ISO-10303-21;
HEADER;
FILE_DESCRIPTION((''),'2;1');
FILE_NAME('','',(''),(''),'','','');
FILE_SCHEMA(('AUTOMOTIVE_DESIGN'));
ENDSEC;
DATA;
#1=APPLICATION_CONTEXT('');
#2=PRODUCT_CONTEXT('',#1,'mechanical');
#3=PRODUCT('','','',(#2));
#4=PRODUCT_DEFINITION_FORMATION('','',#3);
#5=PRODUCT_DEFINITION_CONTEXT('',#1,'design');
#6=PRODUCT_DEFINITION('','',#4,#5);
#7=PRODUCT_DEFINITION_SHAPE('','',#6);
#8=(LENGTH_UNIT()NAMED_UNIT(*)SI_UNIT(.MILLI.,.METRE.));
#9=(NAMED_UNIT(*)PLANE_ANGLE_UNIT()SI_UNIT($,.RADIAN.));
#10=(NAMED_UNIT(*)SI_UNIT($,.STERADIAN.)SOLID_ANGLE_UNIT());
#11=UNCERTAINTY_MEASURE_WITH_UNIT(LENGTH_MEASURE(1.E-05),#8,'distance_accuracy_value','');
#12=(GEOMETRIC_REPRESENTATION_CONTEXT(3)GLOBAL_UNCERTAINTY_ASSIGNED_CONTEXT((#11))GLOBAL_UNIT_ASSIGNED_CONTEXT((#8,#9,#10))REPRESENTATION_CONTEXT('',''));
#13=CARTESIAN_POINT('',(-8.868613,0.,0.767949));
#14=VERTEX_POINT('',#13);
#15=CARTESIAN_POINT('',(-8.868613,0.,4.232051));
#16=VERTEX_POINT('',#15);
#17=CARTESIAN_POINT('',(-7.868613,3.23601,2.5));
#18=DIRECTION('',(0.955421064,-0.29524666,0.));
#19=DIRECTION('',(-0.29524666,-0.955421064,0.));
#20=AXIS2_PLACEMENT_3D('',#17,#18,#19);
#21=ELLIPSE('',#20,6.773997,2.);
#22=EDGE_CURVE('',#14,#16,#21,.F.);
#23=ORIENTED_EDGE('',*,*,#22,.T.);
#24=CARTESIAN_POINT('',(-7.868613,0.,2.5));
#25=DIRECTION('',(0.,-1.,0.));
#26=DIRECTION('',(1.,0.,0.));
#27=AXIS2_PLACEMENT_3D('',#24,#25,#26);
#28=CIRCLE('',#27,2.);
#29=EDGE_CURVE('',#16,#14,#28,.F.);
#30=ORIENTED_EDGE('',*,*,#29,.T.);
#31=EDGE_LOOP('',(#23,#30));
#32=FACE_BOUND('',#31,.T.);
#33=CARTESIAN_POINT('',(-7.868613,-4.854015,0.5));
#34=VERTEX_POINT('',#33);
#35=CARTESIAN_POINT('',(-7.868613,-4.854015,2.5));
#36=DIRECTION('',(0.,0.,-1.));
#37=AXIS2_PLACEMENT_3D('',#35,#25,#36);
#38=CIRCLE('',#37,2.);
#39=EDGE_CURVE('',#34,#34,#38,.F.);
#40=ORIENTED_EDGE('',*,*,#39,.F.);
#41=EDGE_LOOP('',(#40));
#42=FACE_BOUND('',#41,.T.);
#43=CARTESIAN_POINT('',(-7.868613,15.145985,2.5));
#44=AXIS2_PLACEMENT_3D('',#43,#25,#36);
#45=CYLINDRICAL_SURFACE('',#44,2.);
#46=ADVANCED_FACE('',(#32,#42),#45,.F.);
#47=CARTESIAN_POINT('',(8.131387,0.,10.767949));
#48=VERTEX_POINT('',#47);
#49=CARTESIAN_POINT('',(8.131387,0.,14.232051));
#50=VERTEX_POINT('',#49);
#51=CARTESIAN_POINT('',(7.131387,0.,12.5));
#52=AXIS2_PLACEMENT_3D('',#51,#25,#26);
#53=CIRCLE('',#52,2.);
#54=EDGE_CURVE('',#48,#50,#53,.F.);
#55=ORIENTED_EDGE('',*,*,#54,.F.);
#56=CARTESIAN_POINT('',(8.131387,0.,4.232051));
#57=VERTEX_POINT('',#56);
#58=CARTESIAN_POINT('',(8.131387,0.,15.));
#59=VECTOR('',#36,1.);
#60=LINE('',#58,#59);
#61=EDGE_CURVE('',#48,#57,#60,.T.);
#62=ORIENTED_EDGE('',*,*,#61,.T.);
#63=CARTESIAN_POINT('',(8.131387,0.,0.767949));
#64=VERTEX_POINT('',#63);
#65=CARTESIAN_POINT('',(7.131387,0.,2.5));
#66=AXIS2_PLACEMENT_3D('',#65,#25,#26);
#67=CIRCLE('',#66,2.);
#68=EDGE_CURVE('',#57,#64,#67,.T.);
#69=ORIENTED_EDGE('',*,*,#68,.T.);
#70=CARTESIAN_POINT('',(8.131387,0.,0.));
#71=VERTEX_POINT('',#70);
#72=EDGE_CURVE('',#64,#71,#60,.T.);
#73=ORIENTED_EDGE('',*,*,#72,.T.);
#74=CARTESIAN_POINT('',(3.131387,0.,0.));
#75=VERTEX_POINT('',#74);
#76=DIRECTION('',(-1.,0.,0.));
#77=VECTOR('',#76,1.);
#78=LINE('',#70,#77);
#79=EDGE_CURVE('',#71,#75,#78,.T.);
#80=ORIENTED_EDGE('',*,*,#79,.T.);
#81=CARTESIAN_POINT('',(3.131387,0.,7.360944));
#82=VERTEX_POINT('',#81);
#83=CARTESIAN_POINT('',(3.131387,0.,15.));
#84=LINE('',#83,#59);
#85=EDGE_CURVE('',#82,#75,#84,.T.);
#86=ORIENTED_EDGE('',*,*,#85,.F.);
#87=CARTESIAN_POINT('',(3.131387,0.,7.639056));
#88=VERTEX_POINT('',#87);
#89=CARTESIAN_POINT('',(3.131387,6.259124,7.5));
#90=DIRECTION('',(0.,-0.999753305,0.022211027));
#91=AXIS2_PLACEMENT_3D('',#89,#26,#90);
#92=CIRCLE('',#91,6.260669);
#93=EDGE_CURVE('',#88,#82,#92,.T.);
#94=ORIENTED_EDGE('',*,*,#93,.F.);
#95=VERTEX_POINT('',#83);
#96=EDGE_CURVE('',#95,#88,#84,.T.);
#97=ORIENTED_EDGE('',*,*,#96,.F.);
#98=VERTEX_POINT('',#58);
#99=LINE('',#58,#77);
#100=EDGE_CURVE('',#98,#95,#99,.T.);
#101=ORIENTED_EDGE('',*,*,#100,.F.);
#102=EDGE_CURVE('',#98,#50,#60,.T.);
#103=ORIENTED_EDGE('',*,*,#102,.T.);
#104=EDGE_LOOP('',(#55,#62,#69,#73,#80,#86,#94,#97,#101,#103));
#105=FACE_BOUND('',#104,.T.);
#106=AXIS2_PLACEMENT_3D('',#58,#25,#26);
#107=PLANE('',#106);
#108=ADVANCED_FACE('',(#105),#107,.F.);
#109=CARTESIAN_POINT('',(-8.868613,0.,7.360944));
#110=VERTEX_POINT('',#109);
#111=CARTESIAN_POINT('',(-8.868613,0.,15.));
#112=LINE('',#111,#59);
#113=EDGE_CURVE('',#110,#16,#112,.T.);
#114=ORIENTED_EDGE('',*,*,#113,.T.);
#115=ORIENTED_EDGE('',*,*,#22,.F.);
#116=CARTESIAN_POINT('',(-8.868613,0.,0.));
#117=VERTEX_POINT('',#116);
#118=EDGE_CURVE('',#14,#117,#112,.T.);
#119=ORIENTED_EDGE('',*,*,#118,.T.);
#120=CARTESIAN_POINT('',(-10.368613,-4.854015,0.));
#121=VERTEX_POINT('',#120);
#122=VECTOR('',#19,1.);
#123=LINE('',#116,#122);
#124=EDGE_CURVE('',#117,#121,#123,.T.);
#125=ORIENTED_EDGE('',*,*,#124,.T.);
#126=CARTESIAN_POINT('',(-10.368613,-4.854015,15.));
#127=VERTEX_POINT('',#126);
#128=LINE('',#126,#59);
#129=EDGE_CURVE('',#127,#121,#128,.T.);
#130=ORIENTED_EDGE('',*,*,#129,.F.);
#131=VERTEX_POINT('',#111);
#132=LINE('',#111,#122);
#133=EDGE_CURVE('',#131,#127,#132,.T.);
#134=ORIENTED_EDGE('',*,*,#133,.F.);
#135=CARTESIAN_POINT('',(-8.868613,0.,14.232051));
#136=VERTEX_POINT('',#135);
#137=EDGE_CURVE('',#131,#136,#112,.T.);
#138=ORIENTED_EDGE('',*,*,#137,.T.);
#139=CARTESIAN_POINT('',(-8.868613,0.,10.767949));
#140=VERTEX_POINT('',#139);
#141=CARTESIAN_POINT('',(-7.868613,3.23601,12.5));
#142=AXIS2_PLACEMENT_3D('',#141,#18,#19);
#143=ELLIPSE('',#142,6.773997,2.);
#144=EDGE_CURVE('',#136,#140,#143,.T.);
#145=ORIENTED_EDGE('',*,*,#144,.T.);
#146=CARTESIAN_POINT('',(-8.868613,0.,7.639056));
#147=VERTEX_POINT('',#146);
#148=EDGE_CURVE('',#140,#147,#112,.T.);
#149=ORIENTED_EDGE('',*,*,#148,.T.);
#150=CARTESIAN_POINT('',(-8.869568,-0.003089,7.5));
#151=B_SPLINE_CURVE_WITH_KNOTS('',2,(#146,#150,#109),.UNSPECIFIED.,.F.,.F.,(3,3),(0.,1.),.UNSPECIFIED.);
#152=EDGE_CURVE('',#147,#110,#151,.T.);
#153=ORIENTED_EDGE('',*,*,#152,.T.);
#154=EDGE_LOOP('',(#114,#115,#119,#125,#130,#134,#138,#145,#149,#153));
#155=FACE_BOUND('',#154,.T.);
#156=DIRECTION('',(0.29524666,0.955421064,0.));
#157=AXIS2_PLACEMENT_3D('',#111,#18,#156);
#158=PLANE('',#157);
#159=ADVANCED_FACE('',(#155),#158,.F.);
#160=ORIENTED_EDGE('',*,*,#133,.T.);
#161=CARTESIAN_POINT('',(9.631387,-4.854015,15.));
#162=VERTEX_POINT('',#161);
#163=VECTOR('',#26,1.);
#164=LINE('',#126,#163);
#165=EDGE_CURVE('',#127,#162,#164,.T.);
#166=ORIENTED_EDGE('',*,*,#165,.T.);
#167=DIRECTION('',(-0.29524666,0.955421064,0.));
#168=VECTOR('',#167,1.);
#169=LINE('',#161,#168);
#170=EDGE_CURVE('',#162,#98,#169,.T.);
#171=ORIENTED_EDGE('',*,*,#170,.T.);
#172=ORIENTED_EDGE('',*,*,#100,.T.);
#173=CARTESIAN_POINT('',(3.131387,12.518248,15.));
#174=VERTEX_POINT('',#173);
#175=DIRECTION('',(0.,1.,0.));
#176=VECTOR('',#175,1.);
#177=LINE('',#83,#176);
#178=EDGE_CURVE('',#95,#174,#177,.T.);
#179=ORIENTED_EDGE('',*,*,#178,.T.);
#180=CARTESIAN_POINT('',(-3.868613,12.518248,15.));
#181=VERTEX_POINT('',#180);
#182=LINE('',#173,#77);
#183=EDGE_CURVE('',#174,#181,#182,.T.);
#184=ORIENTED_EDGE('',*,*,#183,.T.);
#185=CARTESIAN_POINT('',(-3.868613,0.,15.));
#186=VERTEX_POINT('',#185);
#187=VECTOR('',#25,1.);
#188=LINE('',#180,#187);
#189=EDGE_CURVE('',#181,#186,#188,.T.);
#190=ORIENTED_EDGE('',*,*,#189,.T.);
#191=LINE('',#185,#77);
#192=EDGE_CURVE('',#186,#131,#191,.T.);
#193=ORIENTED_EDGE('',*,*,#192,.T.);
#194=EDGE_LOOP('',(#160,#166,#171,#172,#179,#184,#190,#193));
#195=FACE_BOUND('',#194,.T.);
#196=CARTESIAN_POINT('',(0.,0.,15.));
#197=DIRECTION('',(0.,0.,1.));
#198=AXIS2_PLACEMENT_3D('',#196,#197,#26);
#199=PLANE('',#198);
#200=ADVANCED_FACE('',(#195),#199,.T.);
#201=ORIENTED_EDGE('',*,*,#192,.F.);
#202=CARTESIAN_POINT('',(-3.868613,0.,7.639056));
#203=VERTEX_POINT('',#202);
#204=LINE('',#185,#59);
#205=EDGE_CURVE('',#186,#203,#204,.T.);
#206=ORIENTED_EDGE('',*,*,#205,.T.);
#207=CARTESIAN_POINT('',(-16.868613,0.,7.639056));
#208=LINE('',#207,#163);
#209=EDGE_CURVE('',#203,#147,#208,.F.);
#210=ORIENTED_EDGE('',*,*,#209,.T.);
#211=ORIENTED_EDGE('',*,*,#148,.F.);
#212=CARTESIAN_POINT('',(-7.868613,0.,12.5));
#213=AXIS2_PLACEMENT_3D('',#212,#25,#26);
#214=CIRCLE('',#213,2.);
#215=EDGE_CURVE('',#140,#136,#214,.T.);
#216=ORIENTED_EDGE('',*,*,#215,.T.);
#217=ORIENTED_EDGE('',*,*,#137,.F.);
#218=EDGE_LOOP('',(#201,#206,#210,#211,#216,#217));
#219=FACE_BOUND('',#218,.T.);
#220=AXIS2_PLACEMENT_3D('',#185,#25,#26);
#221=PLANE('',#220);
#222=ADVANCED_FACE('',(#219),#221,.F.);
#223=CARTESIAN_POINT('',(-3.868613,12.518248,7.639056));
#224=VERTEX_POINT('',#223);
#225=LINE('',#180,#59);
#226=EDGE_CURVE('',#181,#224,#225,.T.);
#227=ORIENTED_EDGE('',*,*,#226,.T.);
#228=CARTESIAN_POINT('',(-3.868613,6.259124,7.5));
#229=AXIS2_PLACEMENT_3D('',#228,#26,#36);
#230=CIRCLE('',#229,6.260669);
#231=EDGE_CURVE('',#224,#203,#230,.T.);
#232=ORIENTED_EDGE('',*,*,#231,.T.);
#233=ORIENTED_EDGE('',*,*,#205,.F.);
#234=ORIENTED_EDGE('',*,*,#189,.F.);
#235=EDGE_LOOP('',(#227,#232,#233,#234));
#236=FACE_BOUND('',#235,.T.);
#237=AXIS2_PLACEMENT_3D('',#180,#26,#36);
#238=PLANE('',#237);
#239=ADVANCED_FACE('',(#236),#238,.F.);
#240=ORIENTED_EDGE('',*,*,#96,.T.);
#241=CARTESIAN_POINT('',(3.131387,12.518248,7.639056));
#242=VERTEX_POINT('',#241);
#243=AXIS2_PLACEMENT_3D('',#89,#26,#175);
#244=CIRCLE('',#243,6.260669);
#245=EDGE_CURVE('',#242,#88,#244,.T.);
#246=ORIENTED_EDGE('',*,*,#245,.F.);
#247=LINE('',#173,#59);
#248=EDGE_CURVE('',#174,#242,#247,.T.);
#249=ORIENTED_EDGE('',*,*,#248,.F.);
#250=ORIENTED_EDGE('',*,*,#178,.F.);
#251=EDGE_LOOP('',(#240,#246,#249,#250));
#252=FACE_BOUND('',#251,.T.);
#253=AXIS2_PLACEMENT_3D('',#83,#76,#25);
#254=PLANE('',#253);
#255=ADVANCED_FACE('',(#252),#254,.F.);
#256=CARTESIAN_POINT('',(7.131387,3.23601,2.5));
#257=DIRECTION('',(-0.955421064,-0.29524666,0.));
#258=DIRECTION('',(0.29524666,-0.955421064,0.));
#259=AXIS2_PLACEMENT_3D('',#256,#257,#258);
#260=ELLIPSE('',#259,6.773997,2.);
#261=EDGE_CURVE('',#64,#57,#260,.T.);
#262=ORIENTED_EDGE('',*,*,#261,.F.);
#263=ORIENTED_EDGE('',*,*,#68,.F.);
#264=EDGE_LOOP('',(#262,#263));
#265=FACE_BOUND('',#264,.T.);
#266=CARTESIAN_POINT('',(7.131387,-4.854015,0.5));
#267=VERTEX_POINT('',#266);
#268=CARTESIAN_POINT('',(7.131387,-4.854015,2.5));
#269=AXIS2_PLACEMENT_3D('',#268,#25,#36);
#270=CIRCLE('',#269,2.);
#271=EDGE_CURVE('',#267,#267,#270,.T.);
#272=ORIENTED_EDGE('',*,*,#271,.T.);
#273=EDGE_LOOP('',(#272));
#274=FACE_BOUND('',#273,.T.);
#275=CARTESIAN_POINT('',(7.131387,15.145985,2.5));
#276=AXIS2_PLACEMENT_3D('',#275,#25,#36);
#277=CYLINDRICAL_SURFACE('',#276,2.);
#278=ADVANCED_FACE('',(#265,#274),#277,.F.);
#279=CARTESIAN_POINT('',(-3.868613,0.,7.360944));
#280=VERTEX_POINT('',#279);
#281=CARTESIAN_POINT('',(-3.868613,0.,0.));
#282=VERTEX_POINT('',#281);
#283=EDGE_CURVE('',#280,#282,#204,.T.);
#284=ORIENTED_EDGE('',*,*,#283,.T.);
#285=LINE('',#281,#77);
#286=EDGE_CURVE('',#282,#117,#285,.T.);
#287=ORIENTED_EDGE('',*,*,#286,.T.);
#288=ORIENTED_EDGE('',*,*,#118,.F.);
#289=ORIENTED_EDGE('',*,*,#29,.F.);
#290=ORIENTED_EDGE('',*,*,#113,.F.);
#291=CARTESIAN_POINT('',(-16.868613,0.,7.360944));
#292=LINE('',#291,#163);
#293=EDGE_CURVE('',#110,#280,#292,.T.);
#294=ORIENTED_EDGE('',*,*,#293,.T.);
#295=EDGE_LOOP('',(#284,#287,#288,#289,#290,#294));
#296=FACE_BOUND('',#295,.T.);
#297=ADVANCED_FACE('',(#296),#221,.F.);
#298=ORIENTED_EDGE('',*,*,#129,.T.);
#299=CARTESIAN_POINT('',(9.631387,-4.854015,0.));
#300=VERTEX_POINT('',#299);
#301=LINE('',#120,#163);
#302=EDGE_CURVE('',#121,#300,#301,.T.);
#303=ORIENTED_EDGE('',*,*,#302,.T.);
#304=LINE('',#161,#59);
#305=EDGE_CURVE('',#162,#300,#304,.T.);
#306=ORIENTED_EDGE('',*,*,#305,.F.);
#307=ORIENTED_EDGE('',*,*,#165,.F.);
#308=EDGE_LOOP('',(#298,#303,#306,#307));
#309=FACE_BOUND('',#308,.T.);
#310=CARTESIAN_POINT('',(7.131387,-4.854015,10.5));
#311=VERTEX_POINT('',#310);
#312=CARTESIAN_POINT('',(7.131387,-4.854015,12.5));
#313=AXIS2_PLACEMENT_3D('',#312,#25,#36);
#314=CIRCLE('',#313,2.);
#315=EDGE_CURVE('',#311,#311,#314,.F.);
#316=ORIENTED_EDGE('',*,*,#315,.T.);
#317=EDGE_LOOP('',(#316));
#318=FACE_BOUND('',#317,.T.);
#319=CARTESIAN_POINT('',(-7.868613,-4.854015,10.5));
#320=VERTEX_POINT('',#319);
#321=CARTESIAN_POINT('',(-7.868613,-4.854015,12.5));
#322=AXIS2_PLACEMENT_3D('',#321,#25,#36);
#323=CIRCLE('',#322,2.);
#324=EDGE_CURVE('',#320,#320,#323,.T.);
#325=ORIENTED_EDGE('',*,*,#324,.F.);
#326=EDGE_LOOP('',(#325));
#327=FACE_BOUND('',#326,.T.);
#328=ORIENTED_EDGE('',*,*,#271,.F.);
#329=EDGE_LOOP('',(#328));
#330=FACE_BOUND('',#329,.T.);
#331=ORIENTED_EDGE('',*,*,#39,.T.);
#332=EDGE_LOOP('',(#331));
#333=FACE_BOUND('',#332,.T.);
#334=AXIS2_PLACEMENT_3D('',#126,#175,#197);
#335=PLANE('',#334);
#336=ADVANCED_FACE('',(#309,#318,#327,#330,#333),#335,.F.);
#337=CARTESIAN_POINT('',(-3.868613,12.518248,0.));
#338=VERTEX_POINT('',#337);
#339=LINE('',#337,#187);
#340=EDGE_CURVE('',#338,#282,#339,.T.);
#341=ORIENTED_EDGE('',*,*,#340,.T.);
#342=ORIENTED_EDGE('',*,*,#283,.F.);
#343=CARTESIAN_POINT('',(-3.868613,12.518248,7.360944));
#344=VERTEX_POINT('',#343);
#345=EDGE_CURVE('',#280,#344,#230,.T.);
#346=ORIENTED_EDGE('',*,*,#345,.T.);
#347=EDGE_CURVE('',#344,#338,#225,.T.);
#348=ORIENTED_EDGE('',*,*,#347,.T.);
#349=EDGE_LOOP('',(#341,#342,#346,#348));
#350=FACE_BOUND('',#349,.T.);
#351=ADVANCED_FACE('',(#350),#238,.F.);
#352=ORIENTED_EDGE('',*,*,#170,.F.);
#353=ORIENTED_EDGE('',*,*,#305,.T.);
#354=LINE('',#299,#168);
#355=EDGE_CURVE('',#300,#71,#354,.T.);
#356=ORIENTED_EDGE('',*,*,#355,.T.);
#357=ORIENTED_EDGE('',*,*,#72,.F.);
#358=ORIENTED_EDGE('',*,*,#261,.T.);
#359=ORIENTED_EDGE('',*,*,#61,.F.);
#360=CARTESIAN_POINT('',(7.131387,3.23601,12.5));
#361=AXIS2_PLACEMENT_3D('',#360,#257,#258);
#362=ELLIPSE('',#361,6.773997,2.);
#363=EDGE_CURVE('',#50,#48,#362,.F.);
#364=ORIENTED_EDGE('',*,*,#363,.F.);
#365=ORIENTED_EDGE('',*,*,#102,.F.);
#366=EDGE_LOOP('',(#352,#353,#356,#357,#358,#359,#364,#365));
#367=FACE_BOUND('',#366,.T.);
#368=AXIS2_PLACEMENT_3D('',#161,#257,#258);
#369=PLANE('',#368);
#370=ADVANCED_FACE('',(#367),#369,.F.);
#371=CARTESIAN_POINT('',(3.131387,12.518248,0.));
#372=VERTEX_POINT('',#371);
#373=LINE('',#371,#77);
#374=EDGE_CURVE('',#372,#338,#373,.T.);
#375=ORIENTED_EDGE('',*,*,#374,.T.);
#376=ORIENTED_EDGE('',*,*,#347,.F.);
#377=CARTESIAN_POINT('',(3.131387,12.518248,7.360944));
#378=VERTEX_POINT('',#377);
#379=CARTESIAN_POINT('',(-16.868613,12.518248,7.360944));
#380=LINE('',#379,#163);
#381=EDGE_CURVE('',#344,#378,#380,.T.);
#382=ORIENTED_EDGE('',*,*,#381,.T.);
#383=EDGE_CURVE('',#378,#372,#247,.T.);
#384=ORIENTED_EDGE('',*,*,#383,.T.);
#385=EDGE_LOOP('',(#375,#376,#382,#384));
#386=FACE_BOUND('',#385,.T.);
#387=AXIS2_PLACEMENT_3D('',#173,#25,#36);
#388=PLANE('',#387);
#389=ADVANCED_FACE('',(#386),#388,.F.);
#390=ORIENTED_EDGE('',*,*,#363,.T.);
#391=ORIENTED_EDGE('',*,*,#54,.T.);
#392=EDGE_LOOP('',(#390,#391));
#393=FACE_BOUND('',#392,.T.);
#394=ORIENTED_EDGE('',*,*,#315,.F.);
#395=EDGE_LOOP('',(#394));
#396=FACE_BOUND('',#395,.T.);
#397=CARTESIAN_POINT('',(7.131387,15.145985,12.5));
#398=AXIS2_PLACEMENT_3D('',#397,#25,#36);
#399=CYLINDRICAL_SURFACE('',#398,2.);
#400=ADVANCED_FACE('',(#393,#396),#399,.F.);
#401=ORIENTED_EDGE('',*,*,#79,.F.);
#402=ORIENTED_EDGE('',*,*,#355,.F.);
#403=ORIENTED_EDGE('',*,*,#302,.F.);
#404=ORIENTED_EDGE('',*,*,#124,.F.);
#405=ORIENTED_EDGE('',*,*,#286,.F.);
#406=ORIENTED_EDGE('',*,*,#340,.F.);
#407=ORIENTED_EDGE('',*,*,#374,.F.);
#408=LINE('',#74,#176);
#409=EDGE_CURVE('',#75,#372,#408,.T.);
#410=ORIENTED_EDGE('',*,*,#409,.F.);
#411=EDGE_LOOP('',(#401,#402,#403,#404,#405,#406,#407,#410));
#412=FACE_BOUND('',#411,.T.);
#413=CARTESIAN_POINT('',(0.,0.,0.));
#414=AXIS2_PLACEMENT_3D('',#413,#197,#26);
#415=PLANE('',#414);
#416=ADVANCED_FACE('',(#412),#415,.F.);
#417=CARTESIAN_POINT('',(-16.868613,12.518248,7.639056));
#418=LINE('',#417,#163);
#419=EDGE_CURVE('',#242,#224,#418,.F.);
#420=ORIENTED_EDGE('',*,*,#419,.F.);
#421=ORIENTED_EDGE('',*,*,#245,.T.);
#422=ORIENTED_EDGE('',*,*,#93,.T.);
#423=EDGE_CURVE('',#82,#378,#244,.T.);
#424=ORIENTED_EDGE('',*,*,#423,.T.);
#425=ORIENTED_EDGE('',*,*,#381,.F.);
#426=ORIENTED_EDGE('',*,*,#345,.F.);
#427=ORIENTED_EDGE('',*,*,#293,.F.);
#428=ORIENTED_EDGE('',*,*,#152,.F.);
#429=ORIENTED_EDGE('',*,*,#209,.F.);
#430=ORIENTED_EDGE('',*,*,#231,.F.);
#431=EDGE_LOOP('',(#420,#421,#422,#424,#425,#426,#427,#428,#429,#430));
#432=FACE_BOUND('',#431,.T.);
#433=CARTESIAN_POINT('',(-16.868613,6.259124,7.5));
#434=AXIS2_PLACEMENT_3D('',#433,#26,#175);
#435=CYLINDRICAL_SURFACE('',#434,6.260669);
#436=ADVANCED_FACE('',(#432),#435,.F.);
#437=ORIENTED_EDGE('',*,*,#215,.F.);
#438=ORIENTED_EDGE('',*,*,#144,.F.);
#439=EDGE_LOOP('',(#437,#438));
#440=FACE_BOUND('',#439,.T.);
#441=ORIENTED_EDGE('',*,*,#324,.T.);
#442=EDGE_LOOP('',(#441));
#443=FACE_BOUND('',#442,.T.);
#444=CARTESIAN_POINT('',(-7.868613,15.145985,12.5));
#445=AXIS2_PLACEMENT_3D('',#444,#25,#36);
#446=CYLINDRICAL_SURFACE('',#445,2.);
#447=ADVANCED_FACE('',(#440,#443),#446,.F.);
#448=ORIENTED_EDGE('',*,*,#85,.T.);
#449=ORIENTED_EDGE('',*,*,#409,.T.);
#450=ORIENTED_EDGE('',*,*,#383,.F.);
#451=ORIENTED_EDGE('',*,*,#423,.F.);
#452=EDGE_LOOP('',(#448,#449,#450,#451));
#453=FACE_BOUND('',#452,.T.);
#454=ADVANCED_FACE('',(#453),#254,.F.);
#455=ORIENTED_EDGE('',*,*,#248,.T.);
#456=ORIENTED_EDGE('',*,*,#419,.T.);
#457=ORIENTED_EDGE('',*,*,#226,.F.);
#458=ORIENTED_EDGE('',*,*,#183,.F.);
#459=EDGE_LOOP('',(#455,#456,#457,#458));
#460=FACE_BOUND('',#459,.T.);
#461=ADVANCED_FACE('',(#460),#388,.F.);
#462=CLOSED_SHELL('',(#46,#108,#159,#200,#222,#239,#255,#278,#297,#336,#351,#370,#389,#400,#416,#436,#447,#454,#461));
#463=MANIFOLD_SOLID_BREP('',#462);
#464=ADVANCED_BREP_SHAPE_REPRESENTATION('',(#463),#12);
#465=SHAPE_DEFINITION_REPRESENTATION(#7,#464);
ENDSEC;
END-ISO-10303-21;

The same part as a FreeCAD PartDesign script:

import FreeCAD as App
import Part
import Sketcher
from FreeCAD import Vector
Q = App.Units.Quantity

doc = App.newDocument("Part")
body = doc.addObject("PartDesign::Body", "Body")

# Sketch on XY plane
sketch1 = body.newObject("Sketcher::SketchObject", "Sketch")
sketch1.AttachmentSupport = (doc.getObject("XY_Plane"), [""])
sketch1.MapMode = "FlatFace"
sketch1.addGeometry([
    Part.LineSegment(Vector(-10.4, -4.9, 0), Vector(9.6, -4.9, 0)),  # 0
    Part.LineSegment(Vector(9.6, -4.9, 0), Vector(8.1, 0, 0)),  # 1
    Part.LineSegment(Vector(8.1, 0, 0), Vector(3.1, 0, 0)),  # 2
    Part.LineSegment(Vector(3.1, 0, 0), Vector(3.1, 12.5, 0)),  # 3
    Part.LineSegment(Vector(3.1, 12.5, 0), Vector(-3.9, 12.5, 0)),  # 4
    Part.LineSegment(Vector(-3.9, 12.5, 0), Vector(-3.9, 0, 0)),  # 5
    Part.LineSegment(Vector(-3.9, 0, 0), Vector(-8.9, 0, 0)),  # 6
    Part.LineSegment(Vector(-8.9, 0, 0), Vector(-10.4, -4.9, 0)),  # 7
], False)
sketch1.addConstraint([
    Sketcher.Constraint("Coincident", 0, 2, 1, 1),
    Sketcher.Constraint("Coincident", 1, 2, 2, 1),
    Sketcher.Constraint("Coincident", 2, 2, 3, 1),
    Sketcher.Constraint("Coincident", 3, 2, 4, 1),
    Sketcher.Constraint("Coincident", 4, 2, 5, 1),
    Sketcher.Constraint("Coincident", 5, 2, 6, 1),
    Sketcher.Constraint("Coincident", 6, 2, 7, 1),
    Sketcher.Constraint("Coincident", 7, 2, 0, 1),
    Sketcher.Constraint("Horizontal", 0),
    Sketcher.Constraint("Horizontal", 2),
    Sketcher.Constraint("Vertical", 3),
    Sketcher.Constraint("Horizontal", 4),
    Sketcher.Constraint("Vertical", 5),
    Sketcher.Constraint("Horizontal", 6),
    Sketcher.Constraint("PointOnObject", 1, 2, -1),
    Sketcher.Constraint("PointOnObject", 5, 2, -1),
    Sketcher.Constraint("Equal", 2, 6),
    Sketcher.Constraint("Equal", 1, 7),
    Sketcher.Constraint("DistanceX", 0, 1, 0, 2, Q("20 mm")),
    Sketcher.Constraint("DistanceX", 2, 2, 2, 1, Q("5 mm")),
    Sketcher.Constraint("DistanceX", 4, 2, 4, 1, Q("7 mm")),
    Sketcher.Constraint("DistanceY", 3, 1, 3, 2, Q("12.518248 mm")),
    Sketcher.Constraint("Distance", 1, Q("5.080498 mm")),
    Sketcher.Constraint("DistanceX", -1, 1, 0, 2, Q("9.631387 mm")),
])
pad1 = body.newObject("PartDesign::Pad", "Pad")
pad1.Profile = sketch1
pad1.Length = 15

# Sketch on YZ plane
sketch2 = body.newObject("Sketcher::SketchObject", "Sketch001")
sketch2.AttachmentSupport = (doc.getObject("YZ_Plane"), [""])
sketch2.MapMode = "FlatFace"
sketch2.AttachmentOffset = App.Placement(Vector(0, 0, 3.131387), App.Rotation())
sketch2.addGeometry(Part.Circle(Vector(6, 8, 0), Vector(0, 0, 1), 6), False)
sketch2.addConstraint([
    Sketcher.Constraint("DistanceY", -1, 1, 0, 3, Q("7.5 mm")),
    Sketcher.Constraint("Diameter", 0, Q("12.521337 mm")),
    Sketcher.Constraint("DistanceX", -1, 1, 0, 3, Q("6.259124 mm")),
])
pocket1 = body.newObject("PartDesign::Pocket", "Pocket")
pocket1.Profile = sketch2
pocket1.Length = 20

# Sketch on XZ plane
sketch3 = body.newObject("Sketcher::SketchObject", "Sketch002")
sketch3.AttachmentSupport = (doc.getObject("XZ_Plane"), [""])
sketch3.MapMode = "FlatFace"
sketch3.AttachmentOffset = App.Placement(Vector(0, 0, 4.854015), App.Rotation())
sketch3.addGeometry([
    Part.Circle(Vector(-7.9, 12.5, 0), Vector(0, 0, 1), 2),
    Part.Circle(Vector(7.1, 12.5, 0), Vector(0, 0, 1), 2),
    Part.Circle(Vector(7.1, 2.5, 0), Vector(0, 0, 1), 2),
    Part.Circle(Vector(-7.9, 2.5, 0), Vector(0, 0, 1), 2),
], False)
sketch3.addConstraint([
    Sketcher.Constraint("Equal", 0, 1),
    Sketcher.Constraint("Equal", 1, 2),
    Sketcher.Constraint("Equal", 2, 3),
    Sketcher.Constraint("Horizontal", 0, 3, 1, 3),
    Sketcher.Constraint("Horizontal", 2, 3, 3, 3),
    Sketcher.Constraint("Vertical", 1, 3, 2, 3),
    Sketcher.Constraint("Vertical", 0, 3, 3, 3),
    Sketcher.Constraint("Diameter", 0, Q("4 mm")),
    Sketcher.Constraint("DistanceX", 0, 3, 1, 3, Q("15 mm")),
    Sketcher.Constraint("DistanceY", 2, 3, 1, 3, Q("10 mm")),
    Sketcher.Constraint("DistanceY", -1, 1, 0, 3, Q("12.5 mm")),
    Sketcher.Constraint("DistanceX", 0, 3, -1, 1, Q("7.868613 mm")),
])
pocket2 = body.newObject("PartDesign::Pocket", "Pocket001")
pocket2.Profile = sketch3
pocket2.Length = 20

doc.recompute()
